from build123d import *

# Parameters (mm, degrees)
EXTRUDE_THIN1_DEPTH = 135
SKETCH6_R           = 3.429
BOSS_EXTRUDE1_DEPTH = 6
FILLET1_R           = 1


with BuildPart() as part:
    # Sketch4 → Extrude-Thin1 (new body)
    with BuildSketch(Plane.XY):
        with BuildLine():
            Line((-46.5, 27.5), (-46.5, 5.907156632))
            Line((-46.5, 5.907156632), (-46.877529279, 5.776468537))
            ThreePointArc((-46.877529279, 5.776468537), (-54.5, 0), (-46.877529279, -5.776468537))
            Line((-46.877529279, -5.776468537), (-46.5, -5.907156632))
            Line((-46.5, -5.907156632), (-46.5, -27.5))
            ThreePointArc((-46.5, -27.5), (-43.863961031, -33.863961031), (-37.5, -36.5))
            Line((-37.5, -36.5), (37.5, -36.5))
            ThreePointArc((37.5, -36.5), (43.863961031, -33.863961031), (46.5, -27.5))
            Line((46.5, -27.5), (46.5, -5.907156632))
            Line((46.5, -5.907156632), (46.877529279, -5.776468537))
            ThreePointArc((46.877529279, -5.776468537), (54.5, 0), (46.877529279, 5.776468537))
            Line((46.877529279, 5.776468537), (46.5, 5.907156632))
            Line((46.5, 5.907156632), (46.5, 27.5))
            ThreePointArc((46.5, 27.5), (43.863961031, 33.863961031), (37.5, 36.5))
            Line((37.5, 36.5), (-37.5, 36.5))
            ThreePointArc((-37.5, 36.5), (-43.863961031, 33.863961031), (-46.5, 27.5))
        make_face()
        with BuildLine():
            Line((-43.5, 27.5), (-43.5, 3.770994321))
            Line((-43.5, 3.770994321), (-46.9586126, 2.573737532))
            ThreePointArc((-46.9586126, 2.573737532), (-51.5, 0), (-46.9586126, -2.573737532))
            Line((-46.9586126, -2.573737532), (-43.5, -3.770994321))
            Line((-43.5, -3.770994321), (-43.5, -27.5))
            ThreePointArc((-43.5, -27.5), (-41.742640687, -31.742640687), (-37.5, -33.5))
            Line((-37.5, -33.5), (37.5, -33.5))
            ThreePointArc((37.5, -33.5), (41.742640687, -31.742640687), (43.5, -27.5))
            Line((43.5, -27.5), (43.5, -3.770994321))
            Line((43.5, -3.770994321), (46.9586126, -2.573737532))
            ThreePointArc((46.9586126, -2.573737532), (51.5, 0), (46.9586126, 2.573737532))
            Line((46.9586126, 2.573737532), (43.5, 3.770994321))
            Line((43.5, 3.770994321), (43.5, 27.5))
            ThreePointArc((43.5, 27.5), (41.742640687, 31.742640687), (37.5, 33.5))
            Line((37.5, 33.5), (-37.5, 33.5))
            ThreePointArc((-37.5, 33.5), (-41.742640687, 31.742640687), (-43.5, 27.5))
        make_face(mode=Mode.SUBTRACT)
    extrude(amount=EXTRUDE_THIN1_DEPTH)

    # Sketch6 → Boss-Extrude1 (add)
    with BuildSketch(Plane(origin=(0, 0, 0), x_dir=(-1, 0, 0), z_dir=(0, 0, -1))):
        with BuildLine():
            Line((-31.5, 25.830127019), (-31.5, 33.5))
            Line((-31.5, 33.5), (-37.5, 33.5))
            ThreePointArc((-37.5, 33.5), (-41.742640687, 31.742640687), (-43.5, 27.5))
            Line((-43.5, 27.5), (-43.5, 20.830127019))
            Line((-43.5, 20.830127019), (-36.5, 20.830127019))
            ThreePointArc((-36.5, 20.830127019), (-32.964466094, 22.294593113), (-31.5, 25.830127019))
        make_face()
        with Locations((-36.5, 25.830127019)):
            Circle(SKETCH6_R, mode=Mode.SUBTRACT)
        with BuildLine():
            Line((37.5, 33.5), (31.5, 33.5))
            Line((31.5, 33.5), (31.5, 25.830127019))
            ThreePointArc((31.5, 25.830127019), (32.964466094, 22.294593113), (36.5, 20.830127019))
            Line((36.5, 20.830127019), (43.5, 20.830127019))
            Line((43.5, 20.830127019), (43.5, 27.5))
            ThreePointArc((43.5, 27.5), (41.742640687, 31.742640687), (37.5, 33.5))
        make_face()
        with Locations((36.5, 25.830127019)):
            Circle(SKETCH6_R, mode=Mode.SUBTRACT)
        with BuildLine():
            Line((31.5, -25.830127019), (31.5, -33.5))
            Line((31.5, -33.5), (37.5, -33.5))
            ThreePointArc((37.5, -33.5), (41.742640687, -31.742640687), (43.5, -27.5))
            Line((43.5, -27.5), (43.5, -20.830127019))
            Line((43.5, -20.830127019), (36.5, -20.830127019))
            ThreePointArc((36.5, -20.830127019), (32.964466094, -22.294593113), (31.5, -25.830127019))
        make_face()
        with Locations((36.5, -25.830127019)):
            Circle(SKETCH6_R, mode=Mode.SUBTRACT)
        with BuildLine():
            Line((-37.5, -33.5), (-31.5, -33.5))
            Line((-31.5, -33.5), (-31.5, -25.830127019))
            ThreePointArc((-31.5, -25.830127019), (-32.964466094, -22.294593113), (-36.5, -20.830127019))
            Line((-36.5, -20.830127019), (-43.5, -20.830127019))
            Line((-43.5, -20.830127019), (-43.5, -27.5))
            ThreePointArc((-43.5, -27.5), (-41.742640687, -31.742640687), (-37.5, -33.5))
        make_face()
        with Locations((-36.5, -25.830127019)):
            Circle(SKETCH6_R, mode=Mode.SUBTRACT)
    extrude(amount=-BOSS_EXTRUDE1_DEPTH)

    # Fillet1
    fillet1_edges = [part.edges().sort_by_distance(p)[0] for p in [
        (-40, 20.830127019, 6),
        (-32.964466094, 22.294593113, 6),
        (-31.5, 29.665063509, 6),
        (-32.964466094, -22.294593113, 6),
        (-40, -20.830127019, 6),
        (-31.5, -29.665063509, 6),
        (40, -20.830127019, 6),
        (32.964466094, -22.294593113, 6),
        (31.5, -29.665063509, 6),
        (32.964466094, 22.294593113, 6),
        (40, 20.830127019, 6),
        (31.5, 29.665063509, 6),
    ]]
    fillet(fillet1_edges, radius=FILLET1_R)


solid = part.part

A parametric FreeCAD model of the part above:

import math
import FreeCAD as App
import Part
import Sketcher
Q = App.Units.Quantity


def edges_at(feature, points):
    """Names of the edges that pass closest to the given points."""
    edges = feature.Shape.Edges
    near = lambda p: min(range(len(edges)), key=lambda i: edges[i].distToShape(Part.Vertex(*p))[0])
    return sorted({f"Edge{near(p) + 1}" for p in points})

doc = App.newDocument("Part")
body = doc.addObject("PartDesign::Body", "Body")

# Sketch on XY plane
sketch1 = body.newObject("Sketcher::SketchObject", "Sketch")
sketch1.AttachmentSupport = (doc.getObject("XY_Plane"), [""])
sketch1.MapMode = "FlatFace"
sketch1.addGeometry([
    Part.LineSegment(App.Vector(-46.5, 27.5, 0), App.Vector(-46.5, 5.91, 0)),  # 0
    Part.LineSegment(App.Vector(-46.5, 5.91, 0), App.Vector(-46.88, 5.78, 0)),  # 1
    Part.ArcOfCircle(Part.Circle(App.Vector(-48.5, 0, 0), App.Vector(0, 0, 1), 6), math.radians(74), math.radians(286)),  # 2
    Part.LineSegment(App.Vector(-46.88, -5.78, 0), App.Vector(-46.5, -5.91, 0)),  # 3
    Part.LineSegment(App.Vector(-46.5, -5.91, 0), App.Vector(-46.5, -27.5, 0)),  # 4
    Part.ArcOfCircle(Part.Circle(App.Vector(-37.5, -27.5, 0), App.Vector(0, 0, 1), 9), math.radians(180), math.radians(270)),  # 5
    Part.LineSegment(App.Vector(-37.5, -36.5, 0), App.Vector(37.5, -36.5, 0)),  # 6
    Part.ArcOfCircle(Part.Circle(App.Vector(37.5, -27.5, 0), App.Vector(0, 0, 1), 9), math.radians(-90), math.radians(0)),  # 7
    Part.LineSegment(App.Vector(46.5, -27.5, 0), App.Vector(46.5, -5.91, 0)),  # 8
    Part.LineSegment(App.Vector(46.5, -5.91, 0), App.Vector(46.88, -5.78, 0)),  # 9
    Part.ArcOfCircle(Part.Circle(App.Vector(48.5, 0, 0), App.Vector(0, 0, 1), 6), math.radians(-106), math.radians(106)),  # 10
    Part.LineSegment(App.Vector(46.88, 5.78, 0), App.Vector(46.5, 5.91, 0)),  # 11
    Part.LineSegment(App.Vector(46.5, 5.91, 0), App.Vector(46.5, 27.5, 0)),  # 12
    Part.ArcOfCircle(Part.Circle(App.Vector(37.5, 27.5, 0), App.Vector(0, 0, 1), 9), math.radians(0), math.radians(90)),  # 13
    Part.LineSegment(App.Vector(37.5, 36.5, 0), App.Vector(-37.5, 36.5, 0)),  # 14
    Part.ArcOfCircle(Part.Circle(App.Vector(-37.5, 27.5, 0), App.Vector(0, 0, 1), 9), math.radians(90), math.radians(180)),  # 15
    Part.LineSegment(App.Vector(-43.5, 3.77, 0), App.Vector(-43.5, 27.5, 0)),  # 16
    Part.ArcOfCircle(Part.Circle(App.Vector(-37.5, 27.5, 0), App.Vector(0, 0, 1), 6), math.radians(90), math.radians(180)),  # 17
    Part.LineSegment(App.Vector(-37.5, 33.5, 0), App.Vector(37.5, 33.5, 0)),  # 18
    Part.ArcOfCircle(Part.Circle(App.Vector(37.5, 27.5, 0), App.Vector(0, 0, 1), 6), math.radians(0), math.radians(90)),  # 19
    Part.LineSegment(App.Vector(43.5, 27.5, 0), App.Vector(43.5, 3.77, 0)),  # 20
    Part.LineSegment(App.Vector(43.5, 3.77, 0), App.Vector(46.96, 2.57, 0)),  # 21
    Part.ArcOfCircle(Part.Circle(App.Vector(48.5, 0, 0), App.Vector(0, 0, 1), 3), math.radians(-121), math.radians(121)),  # 22
    Part.LineSegment(App.Vector(46.96, -2.57, 0), App.Vector(43.5, -3.77, 0)),  # 23
    Part.LineSegment(App.Vector(43.5, -3.77, 0), App.Vector(43.5, -27.5, 0)),  # 24
    Part.ArcOfCircle(Part.Circle(App.Vector(37.5, -27.5, 0), App.Vector(0, 0, 1), 6), math.radians(-90), math.radians(0)),  # 25
    Part.LineSegment(App.Vector(37.5, -33.5, 0), App.Vector(-37.5, -33.5, 0)),  # 26
    Part.ArcOfCircle(Part.Circle(App.Vector(-37.5, -27.5, 0), App.Vector(0, 0, 1), 6), math.radians(180), math.radians(270)),  # 27
    Part.LineSegment(App.Vector(-43.5, -27.5, 0), App.Vector(-43.5, -3.77, 0)),  # 28
    Part.LineSegment(App.Vector(-43.5, -3.77, 0), App.Vector(-46.96, -2.57, 0)),  # 29
    Part.ArcOfCircle(Part.Circle(App.Vector(-48.5, 0, 0), App.Vector(0, 0, 1), 3), math.radians(59), math.radians(301)),  # 30
    Part.LineSegment(App.Vector(-46.96, 2.57, 0), App.Vector(-43.5, 3.77, 0)),  # 31
], False)
sketch1.addConstraint([
    Sketcher.Constraint("Coincident", 0, 2, 1, 1),
    Sketcher.Constraint("Coincident", 1, 2, 2, 1),
    Sketcher.Constraint("Coincident", 2, 2, 3, 1),
    Sketcher.Constraint("Coincident", 3, 2, 4, 1),
    Sketcher.Constraint("Tangent", 4, 2, 5, 1),
    Sketcher.Constraint("Tangent", 5, 2, 6, 1),
    Sketcher.Constraint("Tangent", 6, 2, 7, 1),
    Sketcher.Constraint("Tangent", 7, 2, 8, 1),
    Sketcher.Constraint("Coincident", 8, 2, 9, 1),
    Sketcher.Constraint("Coincident", 9, 2, 10, 1),
    Sketcher.Constraint("Coincident", 10, 2, 11, 1),
    Sketcher.Constraint("Coincident", 11, 2, 12, 1),
    Sketcher.Constraint("Tangent", 12, 2, 13, 1),
    Sketcher.Constraint("Tangent", 13, 2, 14, 1),
    Sketcher.Constraint("Tangent", 14, 2, 15, 1),
    Sketcher.Constraint("Tangent", 15, 2, 0, 1),
    Sketcher.Constraint("Tangent", 16, 2, 17, 2),
    Sketcher.Constraint("Tangent", 17, 1, 18, 1),
    Sketcher.Constraint("Tangent", 18, 2, 19, 2),
    Sketcher.Constraint("Tangent", 19, 1, 20, 1),
    Sketcher.Constraint("Coincident", 20, 2, 21, 1),
    Sketcher.Constraint("Coincident", 21, 2, 22, 2),
    Sketcher.Constraint("Coincident", 22, 1, 23, 1),
    Sketcher.Constraint("Coincident", 23, 2, 24, 1),
    Sketcher.Constraint("Tangent", 24, 2, 25, 2),
    Sketcher.Constraint("Tangent", 25, 1, 26, 1),
    Sketcher.Constraint("Tangent", 26, 2, 27, 2),
    Sketcher.Constraint("Tangent", 27, 1, 28, 1),
    Sketcher.Constraint("Coincident", 28, 2, 29, 1),
    Sketcher.Constraint("Coincident", 29, 2, 30, 2),
    Sketcher.Constraint("Coincident", 30, 1, 31, 1),
    Sketcher.Constraint("Coincident", 31, 2, 16, 1),
    Sketcher.Constraint("Vertical", 0),
    Sketcher.Constraint("Vertical", 4),
    Sketcher.Constraint("Horizontal", 6),
    Sketcher.Constraint("Vertical", 8),
    Sketcher.Constraint("Vertical", 12),
    Sketcher.Constraint("Horizontal", 14),
    Sketcher.Constraint("Vertical", 16),
    Sketcher.Constraint("Horizontal", 18),
    Sketcher.Constraint("Vertical", 20),
    Sketcher.Constraint("Vertical", 24),
    Sketcher.Constraint("Horizontal", 26),
    Sketcher.Constraint("Vertical", 28),
    Sketcher.Constraint("Coincident", 17, 3, 15, 3),
    Sketcher.Constraint("Coincident", 19, 3, 13, 3),
    Sketcher.Constraint("Coincident", 22, 3, 10, 3),
    Sketcher.Constraint("Coincident", 25, 3, 7, 3),
    Sketcher.Constraint("Coincident", 27, 3, 5, 3),
    Sketcher.Constraint("Coincident", 30, 3, 2, 3),
    Sketcher.Constraint("Equal", 5, 7),
    Sketcher.Constraint("Equal", 2, 10),
    Sketcher.Constraint("Equal", 7, 13),
    Sketcher.Constraint("Equal", 13, 15),
    Sketcher.Constraint("Equal", 10, 17),
    Sketcher.Constraint("Equal", 19, 25),
    Sketcher.Constraint("Equal", 22, 30),
    Sketcher.Constraint("Symmetric", 2, 3, 10, 3, -1, 1),
    Sketcher.Constraint("Symmetric", 5, 3, 13, 3, -1, 1),
    Sketcher.Constraint("Symmetric", 0, 2, 8, 2, -1, 1),
    Sketcher.Constraint("Symmetric", 3, 2, 8, 2, -2),
    Sketcher.Constraint("Symmetric", 2, 2, 9, 2, -2),
    Sketcher.Constraint("Parallel", 1, 9),
    Sketcher.Constraint("Parallel", 3, 11),
    Sketcher.Constraint("Parallel", 11, 21),
    Sketcher.Constraint("Parallel", 9, 23),
    Sketcher.Constraint("Parallel", 21, 29),
    Sketcher.Constraint("Parallel", 23, 31),
    Sketcher.Constraint("Horizontal", 1, 2, 10, 2),
    Sketcher.Constraint("Horizontal", 23, 2, 28, 2),
    Sketcher.Constraint("Horizontal", 21, 2, 30, 1),
    Sketcher.Constraint("Vertical", 21, 2, 22, 1),
    Sketcher.Constraint("Radius", 2, Q("6 mm")),
    Sketcher.Constraint("Radius", 5, Q("9 mm")),
    Sketcher.Constraint("Radius", 22, Q("3 mm")),
    Sketcher.Constraint("DistanceX", 6, 1, 6, 2, Q("75 mm")),
    Sketcher.Constraint("DistanceX", 2, 3, 5, 3, Q("11 mm")),
    Sketcher.Constraint("DistanceY", 7, 3, 13, 3, Q("55 mm")),
    Sketcher.Constraint("Distance", 1, Q("0.399509 mm")),
    Sketcher.Constraint("DistanceY", 0, 2, 0, 1, Q("21.592843 mm")),
    Sketcher.Constraint("DistanceY", 16, 1, 16, 2, Q("23.729006 mm")),
])
pad1 = body.newObject("PartDesign::Pad", "Pad")
pad1.Profile = sketch1
pad1.Length = 135

# Sketch on XY plane
sketch2 = body.newObject("Sketcher::SketchObject", "Sketch001")
sketch2.AttachmentSupport = (doc.getObject("XY_Plane"), [""])
sketch2.MapMode = "FlatFace"
sketch2.addGeometry([
    Part.LineSegment(App.Vector(31.5, 25.8, 0), App.Vector(31.5, 33.5, 0)),  # 0
    Part.LineSegment(App.Vector(31.5, 33.5, 0), App.Vector(37.5, 33.5, 0)),  # 1
    Part.ArcOfCircle(Part.Circle(App.Vector(37.5, 27.5, 0), App.Vector(0, 0, 1), 6), math.radians(0), math.radians(90)),  # 2
    Part.LineSegment(App.Vector(43.5, 27.5, 0), App.Vector(43.5, 20.8, 0)),  # 3
    Part.LineSegment(App.Vector(43.5, 20.8, 0), App.Vector(36.5, 20.8, 0)),  # 4
    Part.ArcOfCircle(Part.Circle(App.Vector(36.5, 25.8, 0), App.Vector(0, 0, 1), 5), math.radians(180), math.radians(270)),  # 5
    Part.Circle(App.Vector(36.5, 25.8, 0), App.Vector(0, 0, 1), 3.4),  # 6
    Part.LineSegment(App.Vector(-37.5, 33.5, 0), App.Vector(-31.5, 33.5, 0)),  # 7
    Part.LineSegment(App.Vector(-31.5, 33.5, 0), App.Vector(-31.5, 25.8, 0)),  # 8
    Part.ArcOfCircle(Part.Circle(App.Vector(-36.5, 25.8, 0), App.Vector(0, 0, 1), 5), math.radians(-90), math.radians(0)),  # 9
    Part.LineSegment(App.Vector(-36.5, 20.8, 0), App.Vector(-43.5, 20.8, 0)),  # 10
    Part.LineSegment(App.Vector(-43.5, 20.8, 0), App.Vector(-43.5, 27.5, 0)),  # 11
    Part.ArcOfCircle(Part.Circle(App.Vector(-37.5, 27.5, 0), App.Vector(0, 0, 1), 6), math.radians(90), math.radians(180)),  # 12
    Part.Circle(App.Vector(-36.5, 25.8, 0), App.Vector(0, 0, 1), 3.4),  # 13
    Part.LineSegment(App.Vector(-31.5, -25.8, 0), App.Vector(-31.5, -33.5, 0)),  # 14
    Part.LineSegment(App.Vector(-31.5, -33.5, 0), App.Vector(-37.5, -33.5, 0)),  # 15
    Part.ArcOfCircle(Part.Circle(App.Vector(-37.5, -27.5, 0), App.Vector(0, 0, 1), 6), math.radians(180), math.radians(270)),  # 16
    Part.LineSegment(App.Vector(-43.5, -27.5, 0), App.Vector(-43.5, -20.8, 0)),  # 17
    Part.LineSegment(App.Vector(-43.5, -20.8, 0), App.Vector(-36.5, -20.8, 0)),  # 18
    Part.ArcOfCircle(Part.Circle(App.Vector(-36.5, -25.8, 0), App.Vector(0, 0, 1), 5), math.radians(0), math.radians(90)),  # 19
    Part.Circle(App.Vector(-36.5, -25.8, 0), App.Vector(0, 0, 1), 3.4),  # 20
    Part.LineSegment(App.Vector(37.5, -33.5, 0), App.Vector(31.5, -33.5, 0)),  # 21
    Part.LineSegment(App.Vector(31.5, -33.5, 0), App.Vector(31.5, -25.8, 0)),  # 22
    Part.ArcOfCircle(Part.Circle(App.Vector(36.5, -25.8, 0), App.Vector(0, 0, 1), 5), math.radians(90), math.radians(180)),  # 23
    Part.LineSegment(App.Vector(36.5, -20.8, 0), App.Vector(43.5, -20.8, 0)),  # 24
    Part.LineSegment(App.Vector(43.5, -20.8, 0), App.Vector(43.5, -27.5, 0)),  # 25
    Part.ArcOfCircle(Part.Circle(App.Vector(37.5, -27.5, 0), App.Vector(0, 0, 1), 6), math.radians(-90), math.radians(0)),  # 26
    Part.Circle(App.Vector(36.5, -25.8, 0), App.Vector(0, 0, 1), 3.4),  # 27
], False)
sketch2.addConstraint([
    Sketcher.Constraint("Coincident", 0, 2, 1, 1),
    Sketcher.Constraint("Tangent", 1, 2, 2, 2),
    Sketcher.Constraint("Tangent", 2, 1, 3, 1),
    Sketcher.Constraint("Coincident", 3, 2, 4, 1),
    Sketcher.Constraint("Tangent", 4, 2, 5, 2),
    Sketcher.Constraint("Tangent", 5, 1, 0, 1),
    Sketcher.Constraint("Coincident", 7, 2, 8, 1),
    Sketcher.Constraint("Tangent", 8, 2, 9, 2),
    Sketcher.Constraint("Tangent", 9, 1, 10, 1),
    Sketcher.Constraint("Coincident", 10, 2, 11, 1),
    Sketcher.Constraint("Tangent", 11, 2, 12, 2),
    Sketcher.Constraint("Tangent", 12, 1, 7, 1),
    Sketcher.Constraint("Coincident", 14, 2, 15, 1),
    Sketcher.Constraint("Tangent", 15, 2, 16, 2),
    Sketcher.Constraint("Tangent", 16, 1, 17, 1),
    Sketcher.Constraint("Coincident", 17, 2, 18, 1),
    Sketcher.Constraint("Tangent", 18, 2, 19, 2),
    Sketcher.Constraint("Tangent", 19, 1, 14, 1),
    Sketcher.Constraint("Coincident", 21, 2, 22, 1),
    Sketcher.Constraint("Tangent", 22, 2, 23, 2),
    Sketcher.Constraint("Tangent", 23, 1, 24, 1),
    Sketcher.Constraint("Coincident", 24, 2, 25, 1),
    Sketcher.Constraint("Tangent", 25, 2, 26, 2),
    Sketcher.Constraint("Tangent", 26, 1, 21, 1),
    Sketcher.Constraint("Vertical", 0),
    Sketcher.Constraint("Horizontal", 1),
    Sketcher.Constraint("Vertical", 3),
    Sketcher.Constraint("Horizontal", 4),
    Sketcher.Constraint("Horizontal", 7),
    Sketcher.Constraint("Vertical", 8),
    Sketcher.Constraint("Horizontal", 10),
    Sketcher.Constraint("Vertical", 11),
    Sketcher.Constraint("Vertical", 14),
    Sketcher.Constraint("Horizontal", 15),
    Sketcher.Constraint("Vertical", 17),
    Sketcher.Constraint("Horizontal", 18),
    Sketcher.Constraint("Horizontal", 21),
    Sketcher.Constraint("Vertical", 22),
    Sketcher.Constraint("Horizontal", 24),
    Sketcher.Constraint("Vertical", 25),
    Sketcher.Constraint("Coincident", 6, 3, 5, 3),
    Sketcher.Constraint("Coincident", 13, 3, 9, 3),
    Sketcher.Constraint("Coincident", 20, 3, 19, 3),
    Sketcher.Constraint("Coincident", 27, 3, 23, 3),
    Sketcher.Constraint("Equal", 5, 9),
    Sketcher.Constraint("Equal", 2, 12),
    Sketcher.Constraint("Equal", 6, 13),
    Sketcher.Constraint("Equal", 12, 16),
    Sketcher.Constraint("Equal", 9, 19),
    Sketcher.Constraint("Equal", 13, 20),
    Sketcher.Constraint("Equal", 19, 23),
    Sketcher.Constraint("Equal", 16, 26),
    Sketcher.Constraint("Equal", 20, 27),
    Sketcher.Constraint("Symmetric", 2, 3, 16, 3, -1, 1),
    Sketcher.Constraint("Symmetric", 5, 3, 19, 3, -1, 1),
    Sketcher.Constraint("Symmetric", 9, 3, 23, 3, -1, 1),
    Sketcher.Constraint("Symmetric", 12, 3, 26, 3, -1, 1),
    Sketcher.Constraint("Symmetric", 5, 3, 9, 3, -2),
    Sketcher.Constraint("Symmetric", 2, 3, 12, 3, -2),
    Sketcher.Constraint("Radius", 2, Q("6 mm")),
    Sketcher.Constraint("Radius", 5, Q("5 mm")),
    Sketcher.Constraint("DistanceX", 1, 1, 1, 2, Q("6 mm")),
    Sketcher.Constraint("Diameter", 6, Q("6.858 mm")),
    Sketcher.Constraint("DistanceX", 9, 3, 5, 3, Q("73 mm")),
    Sketcher.Constraint("DistanceY", 16, 3, 12, 3, Q("55 mm")),
    Sketcher.Constraint("DistanceY", 0, 1, 0, 2, Q("7.669873 mm")),
])
pad2 = body.newObject("PartDesign::Pad", "Pad001")
pad2.Profile = sketch2
pad2.Length = 6
doc.recompute()

fillet = body.newObject("PartDesign::Fillet", "Fillet")
fillet.Base = (pad2, edges_at(pad2, [
    (-40, 20.83, 6),
    (-32.964, 22.295, 6),
    (-31.5, 29.665, 6),
    (-32.964, -22.295, 6),
    (-40, -20.83, 6),
    (-31.5, -29.665, 6),
    (40, -20.83, 6),
    (32.964, -22.295, 6),
    (31.5, -29.665, 6),
    (32.964, 22.295, 6),
    (40, 20.83, 6),
    (31.5, 29.665, 6),
]))
fillet.Radius = 1

doc.recompute()
